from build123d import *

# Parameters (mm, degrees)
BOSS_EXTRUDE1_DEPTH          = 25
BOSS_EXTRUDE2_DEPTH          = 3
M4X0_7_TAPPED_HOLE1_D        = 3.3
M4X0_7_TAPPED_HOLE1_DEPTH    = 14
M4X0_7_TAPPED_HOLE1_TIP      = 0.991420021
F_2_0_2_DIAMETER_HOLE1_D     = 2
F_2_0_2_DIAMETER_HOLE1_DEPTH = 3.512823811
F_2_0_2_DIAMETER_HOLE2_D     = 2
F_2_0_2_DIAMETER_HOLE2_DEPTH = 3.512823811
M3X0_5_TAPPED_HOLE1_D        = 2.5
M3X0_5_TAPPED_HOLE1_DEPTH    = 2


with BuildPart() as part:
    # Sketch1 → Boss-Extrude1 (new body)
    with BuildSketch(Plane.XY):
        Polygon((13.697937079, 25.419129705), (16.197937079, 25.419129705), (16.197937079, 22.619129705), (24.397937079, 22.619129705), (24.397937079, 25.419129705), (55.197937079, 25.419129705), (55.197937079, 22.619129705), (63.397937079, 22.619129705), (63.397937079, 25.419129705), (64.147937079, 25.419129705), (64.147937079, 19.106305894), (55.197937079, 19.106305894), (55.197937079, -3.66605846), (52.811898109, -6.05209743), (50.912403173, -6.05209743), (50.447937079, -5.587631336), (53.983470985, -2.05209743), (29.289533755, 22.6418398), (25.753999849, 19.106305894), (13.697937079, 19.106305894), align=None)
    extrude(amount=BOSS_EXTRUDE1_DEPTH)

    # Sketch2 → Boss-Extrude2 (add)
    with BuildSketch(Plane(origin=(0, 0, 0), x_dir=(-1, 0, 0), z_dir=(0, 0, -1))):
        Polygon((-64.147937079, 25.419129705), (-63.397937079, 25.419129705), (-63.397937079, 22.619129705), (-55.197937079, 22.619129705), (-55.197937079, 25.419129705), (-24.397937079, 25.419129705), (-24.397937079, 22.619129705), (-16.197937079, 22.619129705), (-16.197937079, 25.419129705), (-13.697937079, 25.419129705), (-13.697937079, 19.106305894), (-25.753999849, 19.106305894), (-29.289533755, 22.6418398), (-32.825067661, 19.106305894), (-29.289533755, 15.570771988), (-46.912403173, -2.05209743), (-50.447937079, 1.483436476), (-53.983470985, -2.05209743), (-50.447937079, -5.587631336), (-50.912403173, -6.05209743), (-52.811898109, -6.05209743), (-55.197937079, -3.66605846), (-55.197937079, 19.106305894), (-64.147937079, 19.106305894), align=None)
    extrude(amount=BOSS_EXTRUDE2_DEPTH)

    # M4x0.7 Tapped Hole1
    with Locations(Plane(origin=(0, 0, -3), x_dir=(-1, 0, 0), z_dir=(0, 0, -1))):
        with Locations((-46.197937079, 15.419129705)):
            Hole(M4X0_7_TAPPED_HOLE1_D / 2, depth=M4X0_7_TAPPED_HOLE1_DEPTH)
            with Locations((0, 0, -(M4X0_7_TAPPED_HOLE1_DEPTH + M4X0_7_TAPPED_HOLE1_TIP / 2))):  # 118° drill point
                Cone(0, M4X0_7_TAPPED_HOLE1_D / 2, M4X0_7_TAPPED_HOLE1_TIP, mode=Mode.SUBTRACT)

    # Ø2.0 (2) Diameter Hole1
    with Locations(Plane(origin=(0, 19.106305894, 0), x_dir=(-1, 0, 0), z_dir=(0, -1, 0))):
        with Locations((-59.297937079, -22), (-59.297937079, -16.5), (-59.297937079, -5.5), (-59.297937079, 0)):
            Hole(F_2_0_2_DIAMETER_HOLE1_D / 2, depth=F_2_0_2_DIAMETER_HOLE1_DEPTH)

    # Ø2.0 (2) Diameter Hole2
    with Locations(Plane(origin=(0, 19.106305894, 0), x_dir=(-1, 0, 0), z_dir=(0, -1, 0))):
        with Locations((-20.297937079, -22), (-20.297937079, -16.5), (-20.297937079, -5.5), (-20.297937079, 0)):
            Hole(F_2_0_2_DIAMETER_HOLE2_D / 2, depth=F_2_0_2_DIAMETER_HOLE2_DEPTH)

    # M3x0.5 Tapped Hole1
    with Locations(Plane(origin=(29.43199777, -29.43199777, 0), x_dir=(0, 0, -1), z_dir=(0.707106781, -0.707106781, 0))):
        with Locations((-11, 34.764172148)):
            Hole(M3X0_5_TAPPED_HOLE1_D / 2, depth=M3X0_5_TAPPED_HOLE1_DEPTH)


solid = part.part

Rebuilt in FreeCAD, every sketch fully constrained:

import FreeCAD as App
import Part
import Sketcher
from FreeCAD import Vector
Q = App.Units.Quantity


def add_polygon(sketch, points):
    """Adds a closed chain of lines whose ends are joined by coincident constraints."""
    first, n = sketch.GeometryCount, len(points)
    for a, b in zip(points, points[1:] + points[:1]):
        sketch.addGeometry(Part.LineSegment(App.Vector(*a, 0), App.Vector(*b, 0)), False)
    for i in range(n):
        sketch.addConstraint(Sketcher.Constraint("Coincident", first + i, 2, first + (i + 1) % n, 1))

doc = App.newDocument("Part")
body = doc.addObject("PartDesign::Body", "Body")

sketch1 = body.newObject("Sketcher::SketchObject", "Sketch")
sketch1.AttachmentSupport = (doc.getObject("XY_Plane"), [""])
sketch1.MapMode = "FlatFace"
add_polygon(sketch1, [(16.197937, 25.41913), (13.697937, 25.41913), (13.697937, 19.106306), (25.754, 19.106306), (29.289534, 22.64184), (53.983471, -2.052097), (50.447937, -5.587631), (50.912403, -6.052097), (52.811898, -6.052097), (55.197937, -3.666058), (55.197937, 19.106306), (64.147937, 19.106306), (64.147937, 25.41913), (63.397937, 25.41913), (63.397937, 22.61913), (55.197937, 22.61913), (55.197937, 25.41913), (24.397937, 25.41913), (24.397937, 22.61913), (16.197937, 22.61913)])
sketch1.addConstraint([
    Sketcher.Constraint("Horizontal", 0),
    Sketcher.Constraint("Vertical", 1),
    Sketcher.Constraint("Horizontal", 2),
    Sketcher.Constraint("Horizontal", 7),
    Sketcher.Constraint("Vertical", 9),
    Sketcher.Constraint("Horizontal", 10),
    Sketcher.Constraint("Vertical", 11),
    Sketcher.Constraint("Horizontal", 12),
    Sketcher.Constraint("Vertical", 13),
    Sketcher.Constraint("Horizontal", 14),
    Sketcher.Constraint("Vertical", 15),
    Sketcher.Constraint("Horizontal", 16),
    Sketcher.Constraint("Vertical", 17),
    Sketcher.Constraint("Horizontal", 18),
    Sketcher.Constraint("Vertical", 19),
    Sketcher.Constraint("Perpendicular", 3, 4),
    Sketcher.Constraint("Perpendicular", 4, 5),
    Sketcher.Constraint("Perpendicular", 5, 6),
    Sketcher.Constraint("Perpendicular", 6, 8),
    Sketcher.Constraint("Horizontal", 2, 2, 9, 2),
    Sketcher.Constraint("Horizontal", 0, 2, 11, 2),
    Sketcher.Constraint("Horizontal", 12, 2, 15, 2),
    Sketcher.Constraint("Horizontal", 14, 2, 17, 2),
    Sketcher.Constraint("Vertical", 9, 2, 14, 2),
    Sketcher.Constraint("Equal", 14, 18),
    Sketcher.Constraint("Equal", 3, 5),
    Sketcher.Constraint("Angle", 3, Q("45 deg")),
    Sketcher.Constraint("Distance", 3, 5.0),
    Sketcher.Constraint("DistanceX", 0, 2, 0, 1, 2.5),
    Sketcher.Constraint("DistanceX", 14, 2, 14, 1, 8.2),
    Sketcher.Constraint("DistanceX", 16, 2, 16, 1, 30.8),
    Sketcher.Constraint("DistanceY", 13, 2, 13, 1, 2.8),
    Sketcher.Constraint("DistanceY", 6, 2, 4, 2, 4.0),
    Sketcher.Constraint("DistanceX", 10, 1, 10, 2, 8.95),
    Sketcher.Constraint("DistanceX", 5, 2, 10, 2, 13.7),
    Sketcher.Constraint("DistanceX", -1, 1, 2, 2, 25.754),
    Sketcher.Constraint("Distance", 4, 34.922501),
    Sketcher.Constraint("DistanceX", -1, 1, 7, 2, 52.811898),
    Sketcher.Constraint("DistanceY", 1, 2, 1, 1, 6.312824),
    Sketcher.Constraint("DistanceY", -1, 1, 0, 2, 25.41913),
])
pad1 = body.newObject("PartDesign::Pad", "Pad")
pad1.Profile = sketch1
pad1.Length = 25

sketch2 = body.newObject("Sketcher::SketchObject", "Sketch001")
sketch2.AttachmentSupport = (doc.getObject("XY_Plane"), [""])
sketch2.MapMode = "FlatFace"
add_polygon(sketch2, [(63.397937, 25.41913), (64.147937, 25.41913), (64.147937, 19.106306), (55.197937, 19.106306), (55.197937, -3.666058), (52.811898, -6.052097), (50.912403, -6.052097), (50.447937, -5.587631), (53.983471, -2.052097), (50.447937, 1.483436), (46.912403, -2.052097), (29.289534, 15.570772), (32.825068, 19.106306), (29.289534, 22.64184), (25.754, 19.106306), (13.697937, 19.106306), (13.697937, 25.41913), (16.197937, 25.41913), (16.197937, 22.61913), (24.397937, 22.61913), (24.397937, 25.41913), (55.197937, 25.41913), (55.197937, 22.61913), (63.397937, 22.61913)])
sketch2.addConstraint([
    Sketcher.Constraint("Horizontal", 0),
    Sketcher.Constraint("Vertical", 1),
    Sketcher.Constraint("Horizontal", 2),
    Sketcher.Constraint("Vertical", 3),
    Sketcher.Constraint("Horizontal", 5),
    Sketcher.Constraint("Horizontal", 14),
    Sketcher.Constraint("Vertical", 15),
    Sketcher.Constraint("Horizontal", 16),
    Sketcher.Constraint("Vertical", 17),
    Sketcher.Constraint("Horizontal", 18),
    Sketcher.Constraint("Vertical", 19),
    Sketcher.Constraint("Horizontal", 20),
    Sketcher.Constraint("Vertical", 21),
    Sketcher.Constraint("Horizontal", 22),
    Sketcher.Constraint("Vertical", 23),
    Sketcher.Constraint("Perpendicular", 4, 6),
    Sketcher.Constraint("Perpendicular", 6, 7),
    Sketcher.Constraint("Perpendicular", 7, 8),
    Sketcher.Constraint("Perpendicular", 8, 9),
    Sketcher.Constraint("Perpendicular", 9, 10),
    Sketcher.Constraint("Perpendicular", 10, 11),
    Sketcher.Constraint("Perpendicular", 11, 12),
    Sketcher.Constraint("Perpendicular", 12, 13),
    Sketcher.Constraint("Horizontal", 7, 2, 9, 2),
    Sketcher.Constraint("Horizontal", 2, 2, 11, 2),
    Sketcher.Constraint("Horizontal", 11, 2, 13, 2),
    Sketcher.Constraint("Horizontal", 0, 2, 15, 2),
    Sketcher.Constraint("Horizontal", 16, 2, 19, 2),
    Sketcher.Constraint("Horizontal", 18, 2, 21, 2),
    Sketcher.Constraint("Vertical", 6, 2, 8, 2),
    Sketcher.Constraint("Vertical", 10, 2, 12, 2),
    Sketcher.Constraint("Vertical", 3, 2, 20, 2),
    Sketcher.Constraint("Equal", 18, 22),
    Sketcher.Constraint("Equal", 7, 8),
    Sketcher.Constraint("Equal", 9, 11),
    Sketcher.Constraint("Distance", 7, 5.0),
    Sketcher.Constraint("DistanceX", 16, 1, 16, 2, 2.5),
    Sketcher.Constraint("DistanceX", 18, 1, 18, 2, 8.2),
    Sketcher.Constraint("DistanceX", 20, 1, 20, 2, 30.8),
    Sketcher.Constraint("DistanceY", 17, 2, 17, 1, 2.8),
    Sketcher.Constraint("DistanceY", 4, 2, 7, 2, 4.0),
    Sketcher.Constraint("DistanceX", 0, 1, 0, 2, 0.75),
    Sketcher.Constraint("DistanceX", 6, 2, 1, 2, 13.7),
    Sketcher.Constraint("DistanceX", -1, 1, 13, 2, 25.754),
    Sketcher.Constraint("Distance", 10, 24.922501),
    Sketcher.Constraint("DistanceX", -1, 1, 4, 2, 52.811898),
    Sketcher.Constraint("DistanceY", 1, 2, 1, 1, 6.312824),
    Sketcher.Constraint("DistanceY", -1, 1, 0, 2, 25.41913),
])
pad2 = body.newObject("PartDesign::Pad", "Pad001")
pad2.Profile = sketch2
pad2.Length = 3
pad2.Reversed = True

sketch3 = body.newObject("Sketcher::SketchObject", "Sketch002")
sketch3.AttachmentSupport = (doc.getObject("XY_Plane"), [""])
sketch3.MapMode = "FlatFace"
sketch3.AttachmentOffset = App.Placement(Vector(0, 0, -3), App.Rotation())
sketch3.addGeometry(Part.Circle(Vector(46.197937, 15.41913, 0), Vector(0, 0, 1), 1.65), False)
sketch3.addConstraint([
    Sketcher.Constraint("Diameter", 0, 3.3),
    Sketcher.Constraint("DistanceY", -1, 1, 0, 3, 15.41913),
    Sketcher.Constraint("DistanceX", -1, 1, 0, 3, 46.197937),
])
doc.recompute()
hole = body.newObject("PartDesign::Hole", "Hole")
hole.Profile = sketch3
hole.ThreadType = "None"
hole.Diameter = 3.3
hole.DepthType = "Dimension"
hole.Depth = 14
hole.DrillPoint = "Angled"
hole.DrillPointAngle = 118
hole.Reversed = True

sketch4 = body.newObject("Sketcher::SketchObject", "Sketch003")
sketch4.AttachmentSupport = (doc.getObject("XZ_Plane"), [""])
sketch4.MapMode = "FlatFace"
sketch4.AttachmentOffset = App.Placement(Vector(0, 0, -19.106306), App.Rotation())
sketch4.addGeometry([
    Part.Circle(Vector(59.297937, 22, 0), Vector(0, 0, 1), 1),
    Part.Circle(Vector(59.297937, 16.5, 0), Vector(0, 0, 1), 1),
    Part.Circle(Vector(59.297937, 5.5, 0), Vector(0, 0, 1), 1),
    Part.Circle(Vector(59.297937, 0, 0), Vector(0, 0, 1), 1),
], False)
sketch4.addConstraint([
    Sketcher.Constraint("Equal", 0, 1),
    Sketcher.Constraint("Equal", 1, 2),
    Sketcher.Constraint("Equal", 2, 3),
    Sketcher.Constraint("PointOnObject", 3, 3, -1),
    Sketcher.Constraint("Vertical", 0, 3, 1, 3),
    Sketcher.Constraint("Vertical", 1, 3, 2, 3),
    Sketcher.Constraint("Vertical", 2, 3, 3, 3),
    Sketcher.Constraint("Diameter", 0, 2.0),
    Sketcher.Constraint("DistanceY", -1, 1, 0, 3, 22.0),
    Sketcher.Constraint("DistanceY", 2, 3, 1, 3, 11.0),
    Sketcher.Constraint("DistanceY", -1, 1, 1, 3, 16.5),
    Sketcher.Constraint("DistanceX", -1, 1, 0, 3, 59.297937),
])
doc.recompute()
hole2 = body.newObject("PartDesign::Hole", "Hole001")
hole2.Profile = sketch4
hole2.ThreadType = "None"
hole2.Diameter = 2
hole2.DepthType = "Dimension"
hole2.Depth = 3.512824
hole2.DrillPoint = "Flat"

sketch5 = body.newObject("Sketcher::SketchObject", "Sketch004")
sketch5.AttachmentSupport = (doc.getObject("XZ_Plane"), [""])
sketch5.MapMode = "FlatFace"
sketch5.AttachmentOffset = App.Placement(Vector(0, 0, -19.106306), App.Rotation())
sketch5.addGeometry([
    Part.Circle(Vector(20.297937, 22, 0), Vector(0, 0, 1), 1),
    Part.Circle(Vector(20.297937, 16.5, 0), Vector(0, 0, 1), 1),
    Part.Circle(Vector(20.297937, 5.5, 0), Vector(0, 0, 1), 1),
    Part.Circle(Vector(20.297937, 0, 0), Vector(0, 0, 1), 1),
], False)
sketch5.addConstraint([
    Sketcher.Constraint("Equal", 0, 1),
    Sketcher.Constraint("Equal", 1, 2),
    Sketcher.Constraint("Equal", 2, 3),
    Sketcher.Constraint("PointOnObject", 3, 3, -1),
    Sketcher.Constraint("Vertical", 0, 3, 1, 3),
    Sketcher.Constraint("Vertical", 1, 3, 2, 3),
    Sketcher.Constraint("Vertical", 2, 3, 3, 3),
    Sketcher.Constraint("Diameter", 0, 2.0),
    Sketcher.Constraint("DistanceY", -1, 1, 0, 3, 22.0),
    Sketcher.Constraint("DistanceY", 2, 3, 1, 3, 11.0),
    Sketcher.Constraint("DistanceY", -1, 1, 1, 3, 16.5),
    Sketcher.Constraint("DistanceX", -1, 1, 0, 3, 20.297937),
])
doc.recompute()
hole3 = body.newObject("PartDesign::Hole", "Hole002")
hole3.Profile = sketch5
hole3.ThreadType = "None"
hole3.Diameter = 2
hole3.DepthType = "Dimension"
hole3.Depth = 3.512824
hole3.DrillPoint = "Flat"

sketch6 = body.newObject("Sketcher::SketchObject", "Sketch005")
sketch6.Placement = App.Placement(Vector(29.431998, -29.431998, 0), App.Rotation(Vector(0, 0, -1), Vector(0.707106781, 0.707106781, 0), Vector(0.707106781, -0.707106781, 0), "ZXY"))
sketch6.addGeometry(Part.Circle(Vector(-11, 34.764172, 0), Vector(0, 0, 1), 1.25), False)
sketch6.addConstraint([
    Sketcher.Constraint("Diameter", 0, 2.5),
    Sketcher.Constraint("DistanceX", 0, 3, -1, 1, 11.0),
    Sketcher.Constraint("DistanceY", -1, 1, 0, 3, 34.764172),
])
doc.recompute()
hole4 = body.newObject("PartDesign::Hole", "Hole003")
hole4.Profile = sketch6
hole4.ThreadType = "None"
hole4.Diameter = 2.5
hole4.DepthType = "Dimension"
hole4.Depth = 2
hole4.DrillPoint = "Flat"

doc.recompute()
